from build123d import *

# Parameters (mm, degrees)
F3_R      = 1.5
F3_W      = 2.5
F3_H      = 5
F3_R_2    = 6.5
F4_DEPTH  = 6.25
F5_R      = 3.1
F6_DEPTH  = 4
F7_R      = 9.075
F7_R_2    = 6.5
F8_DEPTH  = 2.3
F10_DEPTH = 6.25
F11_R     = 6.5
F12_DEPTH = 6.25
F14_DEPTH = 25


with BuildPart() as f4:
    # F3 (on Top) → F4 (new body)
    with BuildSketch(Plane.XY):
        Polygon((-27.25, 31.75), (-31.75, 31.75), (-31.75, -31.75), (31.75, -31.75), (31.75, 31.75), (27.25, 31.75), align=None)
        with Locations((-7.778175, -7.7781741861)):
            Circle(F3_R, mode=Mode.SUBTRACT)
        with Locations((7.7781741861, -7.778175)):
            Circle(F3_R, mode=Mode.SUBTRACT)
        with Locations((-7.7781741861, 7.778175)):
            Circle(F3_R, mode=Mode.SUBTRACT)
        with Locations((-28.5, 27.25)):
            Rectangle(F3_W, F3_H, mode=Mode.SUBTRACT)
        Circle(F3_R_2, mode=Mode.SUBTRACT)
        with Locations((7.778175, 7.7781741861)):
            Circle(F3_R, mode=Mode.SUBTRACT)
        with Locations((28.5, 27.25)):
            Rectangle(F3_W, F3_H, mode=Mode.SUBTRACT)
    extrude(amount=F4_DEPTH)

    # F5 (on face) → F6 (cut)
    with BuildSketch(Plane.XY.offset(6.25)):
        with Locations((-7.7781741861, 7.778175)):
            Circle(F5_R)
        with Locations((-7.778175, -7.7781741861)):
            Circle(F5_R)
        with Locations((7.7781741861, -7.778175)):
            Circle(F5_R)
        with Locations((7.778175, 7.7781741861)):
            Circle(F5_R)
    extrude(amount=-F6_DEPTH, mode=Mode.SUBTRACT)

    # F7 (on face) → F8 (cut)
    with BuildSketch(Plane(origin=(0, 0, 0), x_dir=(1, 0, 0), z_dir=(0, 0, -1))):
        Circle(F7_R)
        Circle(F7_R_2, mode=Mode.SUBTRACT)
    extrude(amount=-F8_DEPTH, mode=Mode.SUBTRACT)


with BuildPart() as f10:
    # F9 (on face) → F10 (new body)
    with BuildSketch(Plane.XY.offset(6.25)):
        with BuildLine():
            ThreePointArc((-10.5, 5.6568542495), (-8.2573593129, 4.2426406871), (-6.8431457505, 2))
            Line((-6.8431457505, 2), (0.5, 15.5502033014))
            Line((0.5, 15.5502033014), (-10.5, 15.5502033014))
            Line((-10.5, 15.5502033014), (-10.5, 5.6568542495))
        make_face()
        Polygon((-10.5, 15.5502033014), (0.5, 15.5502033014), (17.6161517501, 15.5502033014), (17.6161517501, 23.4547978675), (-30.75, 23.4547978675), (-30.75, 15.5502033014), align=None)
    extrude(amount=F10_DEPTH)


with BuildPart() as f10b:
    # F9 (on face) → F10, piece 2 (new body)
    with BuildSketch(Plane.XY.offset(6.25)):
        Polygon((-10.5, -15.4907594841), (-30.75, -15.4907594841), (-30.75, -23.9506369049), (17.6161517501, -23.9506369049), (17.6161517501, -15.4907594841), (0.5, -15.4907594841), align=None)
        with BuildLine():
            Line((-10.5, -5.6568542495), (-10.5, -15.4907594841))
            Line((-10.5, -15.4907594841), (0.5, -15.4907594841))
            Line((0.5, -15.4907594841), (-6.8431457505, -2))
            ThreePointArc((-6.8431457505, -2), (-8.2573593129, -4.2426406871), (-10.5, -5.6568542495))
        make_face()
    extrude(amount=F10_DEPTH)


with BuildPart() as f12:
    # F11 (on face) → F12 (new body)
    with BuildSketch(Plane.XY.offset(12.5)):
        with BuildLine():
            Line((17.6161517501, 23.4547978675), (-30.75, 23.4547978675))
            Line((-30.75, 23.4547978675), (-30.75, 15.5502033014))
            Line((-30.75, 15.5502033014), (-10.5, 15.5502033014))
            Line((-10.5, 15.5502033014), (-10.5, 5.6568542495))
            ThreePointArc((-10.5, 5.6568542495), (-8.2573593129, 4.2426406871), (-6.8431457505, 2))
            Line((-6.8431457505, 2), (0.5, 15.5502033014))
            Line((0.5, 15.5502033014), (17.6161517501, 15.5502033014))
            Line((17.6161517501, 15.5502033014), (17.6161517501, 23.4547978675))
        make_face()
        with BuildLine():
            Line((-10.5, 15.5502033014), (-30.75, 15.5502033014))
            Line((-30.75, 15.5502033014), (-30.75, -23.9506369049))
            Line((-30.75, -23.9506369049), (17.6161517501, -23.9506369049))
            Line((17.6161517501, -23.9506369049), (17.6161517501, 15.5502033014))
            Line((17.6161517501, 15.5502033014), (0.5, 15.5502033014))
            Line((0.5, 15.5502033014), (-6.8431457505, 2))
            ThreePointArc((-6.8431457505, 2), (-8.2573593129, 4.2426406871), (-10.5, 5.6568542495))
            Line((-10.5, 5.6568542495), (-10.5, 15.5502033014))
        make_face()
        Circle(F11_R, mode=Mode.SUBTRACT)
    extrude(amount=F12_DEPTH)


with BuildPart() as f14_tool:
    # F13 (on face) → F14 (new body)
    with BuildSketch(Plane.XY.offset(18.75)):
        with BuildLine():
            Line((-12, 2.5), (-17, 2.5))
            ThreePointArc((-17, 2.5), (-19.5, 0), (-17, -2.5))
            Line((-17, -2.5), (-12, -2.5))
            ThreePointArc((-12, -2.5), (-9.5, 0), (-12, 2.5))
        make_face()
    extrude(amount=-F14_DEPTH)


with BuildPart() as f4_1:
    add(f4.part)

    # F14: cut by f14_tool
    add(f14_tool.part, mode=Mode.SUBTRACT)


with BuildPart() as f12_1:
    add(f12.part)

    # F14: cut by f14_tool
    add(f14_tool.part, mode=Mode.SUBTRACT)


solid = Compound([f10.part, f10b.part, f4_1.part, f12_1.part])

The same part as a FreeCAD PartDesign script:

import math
import FreeCAD as App
import Part
import Sketcher

V = App.Vector
Q = App.Units.Quantity


def add_polygon(sketch, points):
    """Adds a closed chain of lines whose ends are joined by coincident constraints."""
    first, n = sketch.GeometryCount, len(points)
    for a, b in zip(points, points[1:] + points[:1]):
        sketch.addGeometry(Part.LineSegment(App.Vector(*a, 0), App.Vector(*b, 0)), False)
    for i in range(n):
        sketch.addConstraint(Sketcher.Constraint("Coincident", first + i, 2, first + (i + 1) % n, 1))

doc = App.newDocument("Part")
params = doc.addObject("Spreadsheet::Sheet", "Params")
for row, (alias, value) in enumerate([
    ("sketch1_diameter", "3 mm"),
    ("sketch1_diameter2", "13 mm"),
    ("sketch1_height", "5 mm"),
    ("sketch1_width", "63.5 mm"),
    ("sketch1_width2", "2.5 mm"),
    ("pad1_length", "6.25 mm"),
    ("sketch2_diameter", "6.2 mm"),
    ("pocket1_length", "4 mm"),
    ("sketch3_diameter", "13 mm"),
    ("sketch3_diameter2", "18.15 mm"),
    ("pocket2_length", "2.3 mm"),
    ("sketch4_radius", "6 mm"),
    ("sketch4_width", "20.25 mm"),
    ("pad2_length", "6.25 mm"),
    ("sketch5_radius", "6 mm"),
    ("sketch5_width", "2 mm"),
    ("sketch5_width2", "20.25 mm"),
    ("pad3_length", "6.25 mm"),
    ("sketch6_diameter", "13 mm"),
    ("pad4_length", "6.25 mm"),
    ("sketch7_radius", "2.5 mm"),
    ("sketch7_width", "5 mm"),
    ("pad5_length", "25 mm"),
], start=1):
    params.set(f"A{row}", alias)
    params.set(f"B{row}", "=" + value)
    params.setAlias(f"B{row}", alias)

body = doc.addObject("PartDesign::Body", "Body")

sketch1 = doc.addObject("Sketcher::SketchObject", "Sketch")
body.addObject(sketch1)
sketch1.AttachmentSupport = (doc.XY_Plane, [""])
sketch1.MapMode = "FlatFace"
add_polygon(sketch1, [(-31.75, 31.75), (-31.75, -31.75), (31.75, -31.75), (31.75, 31.75)])
sketch1.addGeometry(Part.Circle(V(-7.778175, -7.778174, 0), V(0, 0, 1), 1.5), False)
sketch1.addGeometry(Part.Circle(V(-7.778174, 7.778175, 0), V(0, 0, 1), 1.5), False)
sketch1.addGeometry(Part.Circle(V(7.778174, -7.778175, 0), V(0, 0, 1), 1.5), False)
sketch1.addGeometry(Part.Circle(V(0, 0, 0), V(0, 0, 1), 6.5), False)
sketch1.addGeometry(Part.Circle(V(7.778175, 7.778174, 0), V(0, 0, 1), 1.5), False)
add_polygon(sketch1, [(-27.25, 24.75), (-29.75, 24.75), (-29.75, 29.75), (-27.25, 29.75)])
add_polygon(sketch1, [(29.75, 24.75), (27.25, 24.75), (27.25, 29.75), (29.75, 29.75)])
sketch1.addConstraint(Sketcher.Constraint("Vertical", 0))
sketch1.addConstraint(Sketcher.Constraint("Horizontal", 1))
sketch1.addConstraint(Sketcher.Constraint("Vertical", 2))
sketch1.addConstraint(Sketcher.Constraint("Horizontal", 3))
sketch1.addConstraint(Sketcher.Constraint("Horizontal", 9))
sketch1.addConstraint(Sketcher.Constraint("Vertical", 10))
sketch1.addConstraint(Sketcher.Constraint("Horizontal", 11))
sketch1.addConstraint(Sketcher.Constraint("Vertical", 12))
sketch1.addConstraint(Sketcher.Constraint("Horizontal", 13))
sketch1.addConstraint(Sketcher.Constraint("Vertical", 14))
sketch1.addConstraint(Sketcher.Constraint("Horizontal", 15))
sketch1.addConstraint(Sketcher.Constraint("Vertical", 16))
sketch1.addConstraint(Sketcher.Constraint("Coincident", 7, 3, -1, 1))
sketch1.addConstraint(Sketcher.Constraint("Equal", 4, 5))
sketch1.addConstraint(Sketcher.Constraint("Equal", 5, 6))
sketch1.addConstraint(Sketcher.Constraint("Equal", 6, 8))
sketch1.addConstraint(Sketcher.Constraint("Symmetric", 5, 3, 6, 3, -1, 1))
sketch1.addConstraint(Sketcher.Constraint("Symmetric", 4, 3, 8, 3, -1, 1))
sketch1.addConstraint(Sketcher.Constraint("Symmetric", 0, 2, 2, 2, -1, 1))
sketch1.addConstraint(Sketcher.Constraint("Symmetric", 4, 3, 6, 3, -2))
sketch1.addConstraint(Sketcher.Constraint("Symmetric", 12, 2, 13, 2, -2))
sketch1.addConstraint(Sketcher.Constraint("Symmetric", 10, 2, 15, 2, -2))
sketch1.addConstraint(Sketcher.Constraint("Equal", 3, 0))
sketch1.addConstraint(Sketcher.Constraint("Diameter", 4, Q("3 mm")))
sketch1.addConstraint(Sketcher.Constraint("Diameter", 7, Q("13 mm")))
sketch1.addConstraint(Sketcher.Constraint("DistanceY", 10, 1, 10, 2, Q("5 mm")))
sketch1.addConstraint(Sketcher.Constraint("DistanceX", 1, 1, 1, 2, Q("63.5 mm")))
sketch1.addConstraint(Sketcher.Constraint("DistanceX", 9, 2, 9, 1, Q("2.5 mm")))
sketch1.addConstraint(Sketcher.Constraint("DistanceX", 3, 2, 9, 2, Q("2 mm")))
sketch1.addConstraint(Sketcher.Constraint("DistanceY", 9, 2, 3, 2, Q("7 mm")))
sketch1.addConstraint(Sketcher.Constraint("DistanceY", 4, 3, 5, 3, Q("15.556349 mm")))
sketch1.addConstraint(Sketcher.Constraint("DistanceX", 4, 3, 6, 3, Q("15.556349 mm")))
sketch1.setExpression("Constraints[35]", "Params.sketch1_diameter")
sketch1.setExpression("Constraints[36]", "Params.sketch1_diameter2")
sketch1.setExpression("Constraints[37]", "Params.sketch1_height")
sketch1.setExpression("Constraints[38]", "Params.sketch1_width")
sketch1.setExpression("Constraints[39]", "Params.sketch1_width2")
pad1 = doc.addObject("PartDesign::Pad", "Pad")
body.addObject(pad1)
pad1.Profile = sketch1
pad1.setExpression("Length", "Params.pad1_length")

sketch2 = doc.addObject("Sketcher::SketchObject", "Sketch001")
body.addObject(sketch2)
sketch2.AttachmentSupport = (doc.XY_Plane, [""])
sketch2.MapMode = "FlatFace"
sketch2.AttachmentOffset = App.Placement(V(0, 0, 6.25), App.Rotation())
sketch2.addGeometry(Part.Circle(V(-7.778174, 7.778175, 0), V(0, 0, 1), 3.1), False)
sketch2.addGeometry(Part.Circle(V(-7.778175, -7.778174, 0), V(0, 0, 1), 3.1), False)
sketch2.addGeometry(Part.Circle(V(7.778174, -7.778175, 0), V(0, 0, 1), 3.1), False)
sketch2.addGeometry(Part.Circle(V(7.778175, 7.778174, 0), V(0, 0, 1), 3.1), False)
sketch2.addConstraint(Sketcher.Constraint("Equal", 0, 1))
sketch2.addConstraint(Sketcher.Constraint("Equal", 1, 2))
sketch2.addConstraint(Sketcher.Constraint("Equal", 2, 3))
sketch2.addConstraint(Sketcher.Constraint("Symmetric", 0, 3, 2, 3, -1, 1))
sketch2.addConstraint(Sketcher.Constraint("Symmetric", 1, 3, 3, 3, -1, 1))
sketch2.addConstraint(Sketcher.Constraint("Symmetric", 1, 3, 2, 3, -2))
sketch2.addConstraint(Sketcher.Constraint("Diameter", 0, Q("6.2 mm")))
sketch2.addConstraint(Sketcher.Constraint("DistanceY", 1, 3, 0, 3, Q("15.556349 mm")))
sketch2.addConstraint(Sketcher.Constraint("DistanceX", 1, 3, 2, 3, Q("15.556349 mm")))
sketch2.setExpression("Constraints[6]", "Params.sketch2_diameter")
pocket1 = doc.addObject("PartDesign::Pocket", "Pocket")
body.addObject(pocket1)
pocket1.Profile = sketch2
pocket1.setExpression("Length", "Params.pocket1_length")

sketch3 = doc.addObject("Sketcher::SketchObject", "Sketch002")
body.addObject(sketch3)
sketch3.AttachmentSupport = (doc.XY_Plane, [""])
sketch3.MapMode = "FlatFace"
sketch3.addGeometry(Part.Circle(V(0, 0, 0), V(0, 0, 1), 9.075), False)
sketch3.addGeometry(Part.Circle(V(0, 0, 0), V(0, 0, 1), 6.5), False)
sketch3.addConstraint(Sketcher.Constraint("Coincident", 0, 3, -1, 1))
sketch3.addConstraint(Sketcher.Constraint("Coincident", 1, 3, -1, 1))
sketch3.addConstraint(Sketcher.Constraint("Diameter", 1, Q("13 mm")))
sketch3.addConstraint(Sketcher.Constraint("Diameter", 0, Q("18.15 mm")))
sketch3.setExpression("Constraints[2]", "Params.sketch3_diameter")
sketch3.setExpression("Constraints[3]", "Params.sketch3_diameter2")
pocket2 = doc.addObject("PartDesign::Pocket", "Pocket001")
body.addObject(pocket2)
pocket2.Profile = sketch3
pocket2.setExpression("Length", "Params.pocket2_length")
pocket2.Reversed = True
body2 = doc.addObject("PartDesign::Body", "Body001")

sketch4 = doc.addObject("Sketcher::SketchObject", "Sketch003")
body2.addObject(sketch4)
sketch4.AttachmentSupport = (doc.getObject("XY_Plane001"), [""])
sketch4.MapMode = "FlatFace"
sketch4.AttachmentOffset = App.Placement(V(0, 0, 6.25), App.Rotation())
sketch4.addGeometry(Part.ArcOfCircle(Part.Circle(V(-12.5, 0, 0), V(0, 0, 1), 6), math.radians(19.471221), math.radians(70.528779)), False)
sketch4.addGeometry(Part.LineSegment(V(-6.843146, 2, 0), V(0.5, 15.550203, 0)), False)
sketch4.addGeometry(Part.LineSegment(V(0.5, 15.550203, 0), V(17.616152, 15.550203, 0)), False)
sketch4.addGeometry(Part.LineSegment(V(17.616152, 15.550203, 0), V(17.616152, 23.454798, 0)), False)
sketch4.addGeometry(Part.LineSegment(V(17.616152, 23.454798, 0), V(-30.75, 23.454798, 0)), False)
sketch4.addGeometry(Part.LineSegment(V(-30.75, 23.454798, 0), V(-30.75, 15.550203, 0)), False)
sketch4.addGeometry(Part.LineSegment(V(-30.75, 15.550203, 0), V(-10.5, 15.550203, 0)), False)
sketch4.addGeometry(Part.LineSegment(V(-10.5, 15.550203, 0), V(-10.5, 5.656854, 0)), False)
sketch4.addConstraint(Sketcher.Constraint("Coincident", 0, 1, 1, 1))
sketch4.addConstraint(Sketcher.Constraint("Coincident", 1, 2, 2, 1))
sketch4.addConstraint(Sketcher.Constraint("Coincident", 2, 2, 3, 1))
sketch4.addConstraint(Sketcher.Constraint("Coincident", 3, 2, 4, 1))
sketch4.addConstraint(Sketcher.Constraint("Coincident", 4, 2, 5, 1))
sketch4.addConstraint(Sketcher.Constraint("Coincident", 5, 2, 6, 1))
sketch4.addConstraint(Sketcher.Constraint("Coincident", 6, 2, 7, 1))
sketch4.addConstraint(Sketcher.Constraint("Coincident", 7, 2, 0, 2))
sketch4.addConstraint(Sketcher.Constraint("Horizontal", 2))
sketch4.addConstraint(Sketcher.Constraint("Vertical", 3))
sketch4.addConstraint(Sketcher.Constraint("Horizontal", 4))
sketch4.addConstraint(Sketcher.Constraint("Vertical", 5))
sketch4.addConstraint(Sketcher.Constraint("Horizontal", 6))
sketch4.addConstraint(Sketcher.Constraint("Vertical", 7))
sketch4.addConstraint(Sketcher.Constraint("PointOnObject", 0, 3, -1))
sketch4.addConstraint(Sketcher.Constraint("Horizontal", 2, 2, 5, 2))
sketch4.addConstraint(Sketcher.Constraint("Radius", 0, Q("6 mm")))
sketch4.addConstraint(Sketcher.Constraint("DistanceY", -1, 1, 0, 1, Q("2 mm")))
sketch4.addConstraint(Sketcher.Constraint("DistanceX", 0, 3, 1, 2, Q("13 mm")))
sketch4.addConstraint(Sketcher.Constraint("DistanceX", 6, 2, 1, 2, Q("11 mm")))
sketch4.addConstraint(Sketcher.Constraint("DistanceX", 6, 1, 6, 2, Q("20.25 mm")))
sketch4.addConstraint(Sketcher.Constraint("DistanceX", 0, 3, -1, 1, Q("12.5 mm")))
sketch4.addConstraint(Sketcher.Constraint("Distance", 1, Q("15.412002 mm")))
sketch4.addConstraint(Sketcher.Constraint("DistanceX", 2, 1, 2, 2, Q("17.116152 mm")))
sketch4.addConstraint(Sketcher.Constraint("DistanceY", 3, 1, 3, 2, Q("7.904595 mm")))
sketch4.setExpression("Constraints[16]", "Params.sketch4_radius")
sketch4.setExpression("Constraints[20]", "Params.sketch4_width")
pad2 = doc.addObject("PartDesign::Pad", "Pad001")
body2.addObject(pad2)
pad2.Profile = sketch4
pad2.setExpression("Length", "Params.pad2_length")
body3 = doc.addObject("PartDesign::Body", "Body002")

sketch5 = doc.addObject("Sketcher::SketchObject", "Sketch004")
body3.addObject(sketch5)
sketch5.AttachmentSupport = (doc.getObject("XY_Plane002"), [""])
sketch5.MapMode = "FlatFace"
sketch5.AttachmentOffset = App.Placement(V(0, 0, 6.25), App.Rotation())
sketch5.addGeometry(Part.LineSegment(V(-30.75, -15.490759, 0), V(-30.75, -23.950637, 0)), False)
sketch5.addGeometry(Part.LineSegment(V(-30.75, -23.950637, 0), V(17.616152, -23.950637, 0)), False)
sketch5.addGeometry(Part.LineSegment(V(17.616152, -23.950637, 0), V(17.616152, -15.490759, 0)), False)
sketch5.addGeometry(Part.LineSegment(V(17.616152, -15.490759, 0), V(0.5, -15.490759, 0)), False)
sketch5.addGeometry(Part.LineSegment(V(0.5, -15.490759, 0), V(-6.843146, -2, 0)), False)
sketch5.addGeometry(Part.ArcOfCircle(Part.Circle(V(-12.5, 0, 0), V(0, 0, 1), 6), math.radians(-70.528779), math.radians(-19.471221)), False)
sketch5.addGeometry(Part.LineSegment(V(-10.5, -5.656854, 0), V(-10.5, -15.490759, 0)), False)
sketch5.addGeometry(Part.LineSegment(V(-10.5, -15.490759, 0), V(-30.75, -15.490759, 0)), False)
sketch5.addConstraint(Sketcher.Constraint("Coincident", 0, 2, 1, 1))
sketch5.addConstraint(Sketcher.Constraint("Coincident", 1, 2, 2, 1))
sketch5.addConstraint(Sketcher.Constraint("Coincident", 2, 2, 3, 1))
sketch5.addConstraint(Sketcher.Constraint("Coincident", 3, 2, 4, 1))
sketch5.addConstraint(Sketcher.Constraint("Coincident", 4, 2, 5, 2))
sketch5.addConstraint(Sketcher.Constraint("Coincident", 5, 1, 6, 1))
sketch5.addConstraint(Sketcher.Constraint("Coincident", 6, 2, 7, 1))
sketch5.addConstraint(Sketcher.Constraint("Coincident", 7, 2, 0, 1))
sketch5.addConstraint(Sketcher.Constraint("Vertical", 0))
sketch5.addConstraint(Sketcher.Constraint("Horizontal", 1))
sketch5.addConstraint(Sketcher.Constraint("Vertical", 2))
sketch5.addConstraint(Sketcher.Constraint("Horizontal", 3))
sketch5.addConstraint(Sketcher.Constraint("Vertical", 6))
sketch5.addConstraint(Sketcher.Constraint("Horizontal", 7))
sketch5.addConstraint(Sketcher.Constraint("PointOnObject", 5, 3, -1))
sketch5.addConstraint(Sketcher.Constraint("Horizontal", 3, 2, 6, 2))
sketch5.addConstraint(Sketcher.Constraint("Radius", 5, Q("6 mm")))
sketch5.addConstraint(Sketcher.Constraint("DistanceY", 4, 2, -1, 1, Q("2 mm")))
sketch5.addConstraint(Sketcher.Constraint("DistanceX", 5, 3, 3, 2, Q("13 mm")))
sketch5.addConstraint(Sketcher.Constraint("DistanceX", 5, 3, 5, 1, Q("2 mm")))
sketch5.addConstraint(Sketcher.Constraint("DistanceX", 7, 2, 7, 1, Q("20.25 mm")))
sketch5.addConstraint(Sketcher.Constraint("DistanceX", 5, 3, -1, 1, Q("12.5 mm")))
sketch5.addConstraint(Sketcher.Constraint("DistanceX", 1, 1, 1, 2, Q("48.366152 mm")))
sketch5.addConstraint(Sketcher.Constraint("DistanceY", 0, 2, 0, 1, Q("8.459877 mm")))
sketch5.addConstraint(Sketcher.Constraint("DistanceY", 6, 2, 6, 1, Q("9.833905 mm")))
sketch5.setExpression("Constraints[16]", "Params.sketch5_radius")
sketch5.setExpression("Constraints[19]", "Params.sketch5_width")
sketch5.setExpression("Constraints[20]", "Params.sketch5_width2")
pad3 = doc.addObject("PartDesign::Pad", "Pad002")
body3.addObject(pad3)
pad3.Profile = sketch5
pad3.setExpression("Length", "Params.pad3_length")
body4 = doc.addObject("PartDesign::Body", "Body003")

sketch6 = doc.addObject("Sketcher::SketchObject", "Sketch005")
body4.addObject(sketch6)
sketch6.AttachmentSupport = (doc.getObject("XY_Plane003"), [""])
sketch6.MapMode = "FlatFace"
sketch6.AttachmentOffset = App.Placement(V(0, 0, 12.5), App.Rotation())
add_polygon(sketch6, [(17.616152, 23.454798), (-30.75, 23.454798), (-30.75, -23.950637), (17.616152, -23.950637)])
sketch6.addGeometry(Part.Circle(V(0, 0, 0), V(0, 0, 1), 6.5), False)
sketch6.addConstraint(Sketcher.Constraint("Horizontal", 0))
sketch6.addConstraint(Sketcher.Constraint("Vertical", 1))
sketch6.addConstraint(Sketcher.Constraint("Horizontal", 2))
sketch6.addConstraint(Sketcher.Constraint("Vertical", 3))
sketch6.addConstraint(Sketcher.Constraint("Coincident", 4, 3, -1, 1))
sketch6.addConstraint(Sketcher.Constraint("Diameter", 4, Q("13 mm")))
sketch6.addConstraint(Sketcher.Constraint("DistanceX", 0, 2, -1, 1, Q("30.75 mm")))
sketch6.addConstraint(Sketcher.Constraint("DistanceX", 0, 2, 0, 1, Q("48.366152 mm")))
sketch6.addConstraint(Sketcher.Constraint("DistanceY", 1, 2, 1, 1, Q("47.405435 mm")))
sketch6.addConstraint(Sketcher.Constraint("DistanceY", -1, 1, 0, 2, Q("23.454798 mm")))
sketch6.setExpression("Constraints[9]", "Params.sketch6_diameter")
pad4 = doc.addObject("PartDesign::Pad", "Pad003")
body4.addObject(pad4)
pad4.Profile = sketch6
pad4.setExpression("Length", "Params.pad4_length")
body5 = doc.addObject("PartDesign::Body", "Body004")

sketch7 = doc.addObject("Sketcher::SketchObject", "Sketch006")
body5.addObject(sketch7)
sketch7.AttachmentSupport = (doc.getObject("XY_Plane004"), [""])
sketch7.MapMode = "FlatFace"
sketch7.AttachmentOffset = App.Placement(V(0, 0, 18.75), App.Rotation())
sketch7.addGeometry(Part.LineSegment(V(-12, 2.5, 0), V(-17, 2.5, 0)), False)
sketch7.addGeometry(Part.ArcOfCircle(Part.Circle(V(-17, 0, 0), V(0, 0, 1), 2.5), math.radians(90), math.radians(270)), False)
sketch7.addGeometry(Part.LineSegment(V(-17, -2.5, 0), V(-12, -2.5, 0)), False)
sketch7.addGeometry(Part.ArcOfCircle(Part.Circle(V(-12, 0, 0), V(0, 0, 1), 2.5), math.radians(-90), math.radians(90)), False)
sketch7.addConstraint(Sketcher.Constraint("Tangent", 0, 2, 1, 1))
sketch7.addConstraint(Sketcher.Constraint("Tangent", 1, 2, 2, 1))
sketch7.addConstraint(Sketcher.Constraint("Tangent", 2, 2, 3, 1))
sketch7.addConstraint(Sketcher.Constraint("Tangent", 3, 2, 0, 1))
sketch7.addConstraint(Sketcher.Constraint("Horizontal", 0))
sketch7.addConstraint(Sketcher.Constraint("Horizontal", 2))
sketch7.addConstraint(Sketcher.Constraint("PointOnObject", 1, 3, -1))
sketch7.addConstraint(Sketcher.Constraint("Radius", 1, Q("2.5 mm")))
sketch7.addConstraint(Sketcher.Constraint("DistanceX", 0, 2, 0, 1, Q("5 mm")))
sketch7.addConstraint(Sketcher.Constraint("DistanceX", 1, 3, -1, 1, Q("17 mm")))
sketch7.setExpression("Constraints[7]", "Params.sketch7_radius")
sketch7.setExpression("Constraints[8]", "Params.sketch7_width")
pad5 = doc.addObject("PartDesign::Pad", "Pad004")
body5.addObject(pad5)
pad5.Profile = sketch7
pad5.setExpression("Length", "Params.pad5_length")
pad5.Reversed = True
doc.recompute()

body6 = doc.addObject("PartDesign::Body", "Body005")
body6.BaseFeature = body5
boolean = doc.addObject("PartDesign::Boolean", "Boolean")
body.addObject(boolean)
boolean.Type = "Cut"
boolean.addObjects([body6])
doc.recompute()

boolean2 = doc.addObject("PartDesign::Boolean", "Boolean001")
body4.addObject(boolean2)
boolean2.Type = "Cut"
boolean2.addObjects([body5])

doc.recompute()
